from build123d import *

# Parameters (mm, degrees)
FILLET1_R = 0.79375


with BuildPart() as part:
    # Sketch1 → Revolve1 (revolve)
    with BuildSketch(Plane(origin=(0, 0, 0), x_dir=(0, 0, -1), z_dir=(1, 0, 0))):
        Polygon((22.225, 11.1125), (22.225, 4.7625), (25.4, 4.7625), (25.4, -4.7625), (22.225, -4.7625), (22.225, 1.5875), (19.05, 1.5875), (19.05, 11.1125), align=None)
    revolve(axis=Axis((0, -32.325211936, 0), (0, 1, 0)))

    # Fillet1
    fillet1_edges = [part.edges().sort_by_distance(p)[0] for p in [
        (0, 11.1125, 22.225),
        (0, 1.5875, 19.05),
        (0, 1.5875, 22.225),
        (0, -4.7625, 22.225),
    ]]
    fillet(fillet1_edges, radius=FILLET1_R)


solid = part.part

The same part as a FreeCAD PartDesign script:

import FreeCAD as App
import Part
import Sketcher
from FreeCAD import Vector
Q = App.Units.Quantity


def edges_at(feature, points):
    """Names of the edges that pass closest to the given points."""
    edges = feature.Shape.Edges
    near = lambda p: min(range(len(edges)), key=lambda i: edges[i].distToShape(Part.Vertex(*p))[0])
    return sorted({f"Edge{near(p) + 1}" for p in points})

doc = App.newDocument("Part")
params = doc.addObject("Spreadsheet::Sheet", "Params")
for row, (alias, value) in enumerate([
    ("sketch1_width", "0.25 in"),
    ("sketch1_width2", "0.375 in"),
    ("sketch1_height", "0.125 in"),
    ("revolution_angle", "360 deg"),
    ("fillet_radius", "0.03125 in"),
], start=1):
    params.set(f"A{row}", alias)
    params.set(f"B{row}", "=" + value)
    params.setAlias(f"B{row}", alias)

body = doc.addObject("PartDesign::Body", "Body")

sketch1 = doc.addObject("Sketcher::SketchObject", "Sketch")
body.addObject(sketch1)
sketch1.AttachmentSupport = (doc.YZ_Plane, [""])
sketch1.MapMode = "FlatFace"
sketch1.addGeometry([
    Part.LineSegment(Vector(4.8, -22.2, 0), Vector(11.1, -22.2, 0)),
    Part.LineSegment(Vector(11.1, -22.2, 0), Vector(11.1, -19.1, 0)),
    Part.LineSegment(Vector(11.1, -19.1, 0), Vector(1.6, -19.1, 0)),
    Part.LineSegment(Vector(1.6, -19.1, 0), Vector(1.6, -22.2, 0)),
    Part.LineSegment(Vector(1.6, -22.2, 0), Vector(-4.8, -22.2, 0)),
    Part.LineSegment(Vector(-4.8, -22.2, 0), Vector(-4.8, -25.4, 0)),
    Part.LineSegment(Vector(-4.8, -25.4, 0), Vector(4.8, -25.4, 0)),
    Part.LineSegment(Vector(4.8, -25.4, 0), Vector(4.8, -22.2, 0)),
], False)
sketch1.addConstraint([
    Sketcher.Constraint("Coincident", 0, 2, 1, 1),
    Sketcher.Constraint("Coincident", 1, 2, 2, 1),
    Sketcher.Constraint("Coincident", 2, 2, 3, 1),
    Sketcher.Constraint("Coincident", 3, 2, 4, 1),
    Sketcher.Constraint("Coincident", 4, 2, 5, 1),
    Sketcher.Constraint("Coincident", 5, 2, 6, 1),
    Sketcher.Constraint("Coincident", 6, 2, 7, 1),
    Sketcher.Constraint("Coincident", 7, 2, 0, 1),
    Sketcher.Constraint("Horizontal", 0),
    Sketcher.Constraint("Vertical", 1),
    Sketcher.Constraint("Horizontal", 2),
    Sketcher.Constraint("Vertical", 3),
    Sketcher.Constraint("Horizontal", 4),
    Sketcher.Constraint("Vertical", 5),
    Sketcher.Constraint("Horizontal", 6),
    Sketcher.Constraint("Vertical", 7),
    Sketcher.Constraint("Symmetric", 4, 2, 7, 2, -2),
    Sketcher.Constraint("Equal", 0, 4),
    Sketcher.Constraint("Equal", 3, 5),
    Sketcher.Constraint("DistanceY", 5, 2, -1, 1, Q("1 in")),
    Sketcher.Constraint("DistanceX", 0, 1, 0, 2, Q("0.25 in")),
    Sketcher.Constraint("DistanceX", 2, 2, 2, 1, Q("0.375 in")),
    Sketcher.Constraint("DistanceY", 1, 1, 1, 2, Q("0.125 in")),
])
sketch1.setExpression("Constraints[20]", "Params.sketch1_width")
sketch1.setExpression("Constraints[21]", "Params.sketch1_width2")
sketch1.setExpression("Constraints[22]", "Params.sketch1_height")
revolution = doc.addObject("PartDesign::Revolution", "Revolution")
body.addObject(revolution)
revolution.Profile = sketch1
revolution.ReferenceAxis = (sketch1, ["H_Axis"])
revolution.setExpression("Angle", "Params.revolution_angle")
doc.recompute()

fillet = doc.addObject("PartDesign::Fillet", "Fillet")
body.addObject(fillet)
fillet.Base = (revolution, edges_at(revolution, [
    (0, 11.113, 22.225),
    (0, 1.587, 19.05),
    (0, 1.587, 22.225),
    (0, -4.763, 22.225),
]))
fillet.setExpression("Radius", "Params.fillet_radius")

doc.recompute()
